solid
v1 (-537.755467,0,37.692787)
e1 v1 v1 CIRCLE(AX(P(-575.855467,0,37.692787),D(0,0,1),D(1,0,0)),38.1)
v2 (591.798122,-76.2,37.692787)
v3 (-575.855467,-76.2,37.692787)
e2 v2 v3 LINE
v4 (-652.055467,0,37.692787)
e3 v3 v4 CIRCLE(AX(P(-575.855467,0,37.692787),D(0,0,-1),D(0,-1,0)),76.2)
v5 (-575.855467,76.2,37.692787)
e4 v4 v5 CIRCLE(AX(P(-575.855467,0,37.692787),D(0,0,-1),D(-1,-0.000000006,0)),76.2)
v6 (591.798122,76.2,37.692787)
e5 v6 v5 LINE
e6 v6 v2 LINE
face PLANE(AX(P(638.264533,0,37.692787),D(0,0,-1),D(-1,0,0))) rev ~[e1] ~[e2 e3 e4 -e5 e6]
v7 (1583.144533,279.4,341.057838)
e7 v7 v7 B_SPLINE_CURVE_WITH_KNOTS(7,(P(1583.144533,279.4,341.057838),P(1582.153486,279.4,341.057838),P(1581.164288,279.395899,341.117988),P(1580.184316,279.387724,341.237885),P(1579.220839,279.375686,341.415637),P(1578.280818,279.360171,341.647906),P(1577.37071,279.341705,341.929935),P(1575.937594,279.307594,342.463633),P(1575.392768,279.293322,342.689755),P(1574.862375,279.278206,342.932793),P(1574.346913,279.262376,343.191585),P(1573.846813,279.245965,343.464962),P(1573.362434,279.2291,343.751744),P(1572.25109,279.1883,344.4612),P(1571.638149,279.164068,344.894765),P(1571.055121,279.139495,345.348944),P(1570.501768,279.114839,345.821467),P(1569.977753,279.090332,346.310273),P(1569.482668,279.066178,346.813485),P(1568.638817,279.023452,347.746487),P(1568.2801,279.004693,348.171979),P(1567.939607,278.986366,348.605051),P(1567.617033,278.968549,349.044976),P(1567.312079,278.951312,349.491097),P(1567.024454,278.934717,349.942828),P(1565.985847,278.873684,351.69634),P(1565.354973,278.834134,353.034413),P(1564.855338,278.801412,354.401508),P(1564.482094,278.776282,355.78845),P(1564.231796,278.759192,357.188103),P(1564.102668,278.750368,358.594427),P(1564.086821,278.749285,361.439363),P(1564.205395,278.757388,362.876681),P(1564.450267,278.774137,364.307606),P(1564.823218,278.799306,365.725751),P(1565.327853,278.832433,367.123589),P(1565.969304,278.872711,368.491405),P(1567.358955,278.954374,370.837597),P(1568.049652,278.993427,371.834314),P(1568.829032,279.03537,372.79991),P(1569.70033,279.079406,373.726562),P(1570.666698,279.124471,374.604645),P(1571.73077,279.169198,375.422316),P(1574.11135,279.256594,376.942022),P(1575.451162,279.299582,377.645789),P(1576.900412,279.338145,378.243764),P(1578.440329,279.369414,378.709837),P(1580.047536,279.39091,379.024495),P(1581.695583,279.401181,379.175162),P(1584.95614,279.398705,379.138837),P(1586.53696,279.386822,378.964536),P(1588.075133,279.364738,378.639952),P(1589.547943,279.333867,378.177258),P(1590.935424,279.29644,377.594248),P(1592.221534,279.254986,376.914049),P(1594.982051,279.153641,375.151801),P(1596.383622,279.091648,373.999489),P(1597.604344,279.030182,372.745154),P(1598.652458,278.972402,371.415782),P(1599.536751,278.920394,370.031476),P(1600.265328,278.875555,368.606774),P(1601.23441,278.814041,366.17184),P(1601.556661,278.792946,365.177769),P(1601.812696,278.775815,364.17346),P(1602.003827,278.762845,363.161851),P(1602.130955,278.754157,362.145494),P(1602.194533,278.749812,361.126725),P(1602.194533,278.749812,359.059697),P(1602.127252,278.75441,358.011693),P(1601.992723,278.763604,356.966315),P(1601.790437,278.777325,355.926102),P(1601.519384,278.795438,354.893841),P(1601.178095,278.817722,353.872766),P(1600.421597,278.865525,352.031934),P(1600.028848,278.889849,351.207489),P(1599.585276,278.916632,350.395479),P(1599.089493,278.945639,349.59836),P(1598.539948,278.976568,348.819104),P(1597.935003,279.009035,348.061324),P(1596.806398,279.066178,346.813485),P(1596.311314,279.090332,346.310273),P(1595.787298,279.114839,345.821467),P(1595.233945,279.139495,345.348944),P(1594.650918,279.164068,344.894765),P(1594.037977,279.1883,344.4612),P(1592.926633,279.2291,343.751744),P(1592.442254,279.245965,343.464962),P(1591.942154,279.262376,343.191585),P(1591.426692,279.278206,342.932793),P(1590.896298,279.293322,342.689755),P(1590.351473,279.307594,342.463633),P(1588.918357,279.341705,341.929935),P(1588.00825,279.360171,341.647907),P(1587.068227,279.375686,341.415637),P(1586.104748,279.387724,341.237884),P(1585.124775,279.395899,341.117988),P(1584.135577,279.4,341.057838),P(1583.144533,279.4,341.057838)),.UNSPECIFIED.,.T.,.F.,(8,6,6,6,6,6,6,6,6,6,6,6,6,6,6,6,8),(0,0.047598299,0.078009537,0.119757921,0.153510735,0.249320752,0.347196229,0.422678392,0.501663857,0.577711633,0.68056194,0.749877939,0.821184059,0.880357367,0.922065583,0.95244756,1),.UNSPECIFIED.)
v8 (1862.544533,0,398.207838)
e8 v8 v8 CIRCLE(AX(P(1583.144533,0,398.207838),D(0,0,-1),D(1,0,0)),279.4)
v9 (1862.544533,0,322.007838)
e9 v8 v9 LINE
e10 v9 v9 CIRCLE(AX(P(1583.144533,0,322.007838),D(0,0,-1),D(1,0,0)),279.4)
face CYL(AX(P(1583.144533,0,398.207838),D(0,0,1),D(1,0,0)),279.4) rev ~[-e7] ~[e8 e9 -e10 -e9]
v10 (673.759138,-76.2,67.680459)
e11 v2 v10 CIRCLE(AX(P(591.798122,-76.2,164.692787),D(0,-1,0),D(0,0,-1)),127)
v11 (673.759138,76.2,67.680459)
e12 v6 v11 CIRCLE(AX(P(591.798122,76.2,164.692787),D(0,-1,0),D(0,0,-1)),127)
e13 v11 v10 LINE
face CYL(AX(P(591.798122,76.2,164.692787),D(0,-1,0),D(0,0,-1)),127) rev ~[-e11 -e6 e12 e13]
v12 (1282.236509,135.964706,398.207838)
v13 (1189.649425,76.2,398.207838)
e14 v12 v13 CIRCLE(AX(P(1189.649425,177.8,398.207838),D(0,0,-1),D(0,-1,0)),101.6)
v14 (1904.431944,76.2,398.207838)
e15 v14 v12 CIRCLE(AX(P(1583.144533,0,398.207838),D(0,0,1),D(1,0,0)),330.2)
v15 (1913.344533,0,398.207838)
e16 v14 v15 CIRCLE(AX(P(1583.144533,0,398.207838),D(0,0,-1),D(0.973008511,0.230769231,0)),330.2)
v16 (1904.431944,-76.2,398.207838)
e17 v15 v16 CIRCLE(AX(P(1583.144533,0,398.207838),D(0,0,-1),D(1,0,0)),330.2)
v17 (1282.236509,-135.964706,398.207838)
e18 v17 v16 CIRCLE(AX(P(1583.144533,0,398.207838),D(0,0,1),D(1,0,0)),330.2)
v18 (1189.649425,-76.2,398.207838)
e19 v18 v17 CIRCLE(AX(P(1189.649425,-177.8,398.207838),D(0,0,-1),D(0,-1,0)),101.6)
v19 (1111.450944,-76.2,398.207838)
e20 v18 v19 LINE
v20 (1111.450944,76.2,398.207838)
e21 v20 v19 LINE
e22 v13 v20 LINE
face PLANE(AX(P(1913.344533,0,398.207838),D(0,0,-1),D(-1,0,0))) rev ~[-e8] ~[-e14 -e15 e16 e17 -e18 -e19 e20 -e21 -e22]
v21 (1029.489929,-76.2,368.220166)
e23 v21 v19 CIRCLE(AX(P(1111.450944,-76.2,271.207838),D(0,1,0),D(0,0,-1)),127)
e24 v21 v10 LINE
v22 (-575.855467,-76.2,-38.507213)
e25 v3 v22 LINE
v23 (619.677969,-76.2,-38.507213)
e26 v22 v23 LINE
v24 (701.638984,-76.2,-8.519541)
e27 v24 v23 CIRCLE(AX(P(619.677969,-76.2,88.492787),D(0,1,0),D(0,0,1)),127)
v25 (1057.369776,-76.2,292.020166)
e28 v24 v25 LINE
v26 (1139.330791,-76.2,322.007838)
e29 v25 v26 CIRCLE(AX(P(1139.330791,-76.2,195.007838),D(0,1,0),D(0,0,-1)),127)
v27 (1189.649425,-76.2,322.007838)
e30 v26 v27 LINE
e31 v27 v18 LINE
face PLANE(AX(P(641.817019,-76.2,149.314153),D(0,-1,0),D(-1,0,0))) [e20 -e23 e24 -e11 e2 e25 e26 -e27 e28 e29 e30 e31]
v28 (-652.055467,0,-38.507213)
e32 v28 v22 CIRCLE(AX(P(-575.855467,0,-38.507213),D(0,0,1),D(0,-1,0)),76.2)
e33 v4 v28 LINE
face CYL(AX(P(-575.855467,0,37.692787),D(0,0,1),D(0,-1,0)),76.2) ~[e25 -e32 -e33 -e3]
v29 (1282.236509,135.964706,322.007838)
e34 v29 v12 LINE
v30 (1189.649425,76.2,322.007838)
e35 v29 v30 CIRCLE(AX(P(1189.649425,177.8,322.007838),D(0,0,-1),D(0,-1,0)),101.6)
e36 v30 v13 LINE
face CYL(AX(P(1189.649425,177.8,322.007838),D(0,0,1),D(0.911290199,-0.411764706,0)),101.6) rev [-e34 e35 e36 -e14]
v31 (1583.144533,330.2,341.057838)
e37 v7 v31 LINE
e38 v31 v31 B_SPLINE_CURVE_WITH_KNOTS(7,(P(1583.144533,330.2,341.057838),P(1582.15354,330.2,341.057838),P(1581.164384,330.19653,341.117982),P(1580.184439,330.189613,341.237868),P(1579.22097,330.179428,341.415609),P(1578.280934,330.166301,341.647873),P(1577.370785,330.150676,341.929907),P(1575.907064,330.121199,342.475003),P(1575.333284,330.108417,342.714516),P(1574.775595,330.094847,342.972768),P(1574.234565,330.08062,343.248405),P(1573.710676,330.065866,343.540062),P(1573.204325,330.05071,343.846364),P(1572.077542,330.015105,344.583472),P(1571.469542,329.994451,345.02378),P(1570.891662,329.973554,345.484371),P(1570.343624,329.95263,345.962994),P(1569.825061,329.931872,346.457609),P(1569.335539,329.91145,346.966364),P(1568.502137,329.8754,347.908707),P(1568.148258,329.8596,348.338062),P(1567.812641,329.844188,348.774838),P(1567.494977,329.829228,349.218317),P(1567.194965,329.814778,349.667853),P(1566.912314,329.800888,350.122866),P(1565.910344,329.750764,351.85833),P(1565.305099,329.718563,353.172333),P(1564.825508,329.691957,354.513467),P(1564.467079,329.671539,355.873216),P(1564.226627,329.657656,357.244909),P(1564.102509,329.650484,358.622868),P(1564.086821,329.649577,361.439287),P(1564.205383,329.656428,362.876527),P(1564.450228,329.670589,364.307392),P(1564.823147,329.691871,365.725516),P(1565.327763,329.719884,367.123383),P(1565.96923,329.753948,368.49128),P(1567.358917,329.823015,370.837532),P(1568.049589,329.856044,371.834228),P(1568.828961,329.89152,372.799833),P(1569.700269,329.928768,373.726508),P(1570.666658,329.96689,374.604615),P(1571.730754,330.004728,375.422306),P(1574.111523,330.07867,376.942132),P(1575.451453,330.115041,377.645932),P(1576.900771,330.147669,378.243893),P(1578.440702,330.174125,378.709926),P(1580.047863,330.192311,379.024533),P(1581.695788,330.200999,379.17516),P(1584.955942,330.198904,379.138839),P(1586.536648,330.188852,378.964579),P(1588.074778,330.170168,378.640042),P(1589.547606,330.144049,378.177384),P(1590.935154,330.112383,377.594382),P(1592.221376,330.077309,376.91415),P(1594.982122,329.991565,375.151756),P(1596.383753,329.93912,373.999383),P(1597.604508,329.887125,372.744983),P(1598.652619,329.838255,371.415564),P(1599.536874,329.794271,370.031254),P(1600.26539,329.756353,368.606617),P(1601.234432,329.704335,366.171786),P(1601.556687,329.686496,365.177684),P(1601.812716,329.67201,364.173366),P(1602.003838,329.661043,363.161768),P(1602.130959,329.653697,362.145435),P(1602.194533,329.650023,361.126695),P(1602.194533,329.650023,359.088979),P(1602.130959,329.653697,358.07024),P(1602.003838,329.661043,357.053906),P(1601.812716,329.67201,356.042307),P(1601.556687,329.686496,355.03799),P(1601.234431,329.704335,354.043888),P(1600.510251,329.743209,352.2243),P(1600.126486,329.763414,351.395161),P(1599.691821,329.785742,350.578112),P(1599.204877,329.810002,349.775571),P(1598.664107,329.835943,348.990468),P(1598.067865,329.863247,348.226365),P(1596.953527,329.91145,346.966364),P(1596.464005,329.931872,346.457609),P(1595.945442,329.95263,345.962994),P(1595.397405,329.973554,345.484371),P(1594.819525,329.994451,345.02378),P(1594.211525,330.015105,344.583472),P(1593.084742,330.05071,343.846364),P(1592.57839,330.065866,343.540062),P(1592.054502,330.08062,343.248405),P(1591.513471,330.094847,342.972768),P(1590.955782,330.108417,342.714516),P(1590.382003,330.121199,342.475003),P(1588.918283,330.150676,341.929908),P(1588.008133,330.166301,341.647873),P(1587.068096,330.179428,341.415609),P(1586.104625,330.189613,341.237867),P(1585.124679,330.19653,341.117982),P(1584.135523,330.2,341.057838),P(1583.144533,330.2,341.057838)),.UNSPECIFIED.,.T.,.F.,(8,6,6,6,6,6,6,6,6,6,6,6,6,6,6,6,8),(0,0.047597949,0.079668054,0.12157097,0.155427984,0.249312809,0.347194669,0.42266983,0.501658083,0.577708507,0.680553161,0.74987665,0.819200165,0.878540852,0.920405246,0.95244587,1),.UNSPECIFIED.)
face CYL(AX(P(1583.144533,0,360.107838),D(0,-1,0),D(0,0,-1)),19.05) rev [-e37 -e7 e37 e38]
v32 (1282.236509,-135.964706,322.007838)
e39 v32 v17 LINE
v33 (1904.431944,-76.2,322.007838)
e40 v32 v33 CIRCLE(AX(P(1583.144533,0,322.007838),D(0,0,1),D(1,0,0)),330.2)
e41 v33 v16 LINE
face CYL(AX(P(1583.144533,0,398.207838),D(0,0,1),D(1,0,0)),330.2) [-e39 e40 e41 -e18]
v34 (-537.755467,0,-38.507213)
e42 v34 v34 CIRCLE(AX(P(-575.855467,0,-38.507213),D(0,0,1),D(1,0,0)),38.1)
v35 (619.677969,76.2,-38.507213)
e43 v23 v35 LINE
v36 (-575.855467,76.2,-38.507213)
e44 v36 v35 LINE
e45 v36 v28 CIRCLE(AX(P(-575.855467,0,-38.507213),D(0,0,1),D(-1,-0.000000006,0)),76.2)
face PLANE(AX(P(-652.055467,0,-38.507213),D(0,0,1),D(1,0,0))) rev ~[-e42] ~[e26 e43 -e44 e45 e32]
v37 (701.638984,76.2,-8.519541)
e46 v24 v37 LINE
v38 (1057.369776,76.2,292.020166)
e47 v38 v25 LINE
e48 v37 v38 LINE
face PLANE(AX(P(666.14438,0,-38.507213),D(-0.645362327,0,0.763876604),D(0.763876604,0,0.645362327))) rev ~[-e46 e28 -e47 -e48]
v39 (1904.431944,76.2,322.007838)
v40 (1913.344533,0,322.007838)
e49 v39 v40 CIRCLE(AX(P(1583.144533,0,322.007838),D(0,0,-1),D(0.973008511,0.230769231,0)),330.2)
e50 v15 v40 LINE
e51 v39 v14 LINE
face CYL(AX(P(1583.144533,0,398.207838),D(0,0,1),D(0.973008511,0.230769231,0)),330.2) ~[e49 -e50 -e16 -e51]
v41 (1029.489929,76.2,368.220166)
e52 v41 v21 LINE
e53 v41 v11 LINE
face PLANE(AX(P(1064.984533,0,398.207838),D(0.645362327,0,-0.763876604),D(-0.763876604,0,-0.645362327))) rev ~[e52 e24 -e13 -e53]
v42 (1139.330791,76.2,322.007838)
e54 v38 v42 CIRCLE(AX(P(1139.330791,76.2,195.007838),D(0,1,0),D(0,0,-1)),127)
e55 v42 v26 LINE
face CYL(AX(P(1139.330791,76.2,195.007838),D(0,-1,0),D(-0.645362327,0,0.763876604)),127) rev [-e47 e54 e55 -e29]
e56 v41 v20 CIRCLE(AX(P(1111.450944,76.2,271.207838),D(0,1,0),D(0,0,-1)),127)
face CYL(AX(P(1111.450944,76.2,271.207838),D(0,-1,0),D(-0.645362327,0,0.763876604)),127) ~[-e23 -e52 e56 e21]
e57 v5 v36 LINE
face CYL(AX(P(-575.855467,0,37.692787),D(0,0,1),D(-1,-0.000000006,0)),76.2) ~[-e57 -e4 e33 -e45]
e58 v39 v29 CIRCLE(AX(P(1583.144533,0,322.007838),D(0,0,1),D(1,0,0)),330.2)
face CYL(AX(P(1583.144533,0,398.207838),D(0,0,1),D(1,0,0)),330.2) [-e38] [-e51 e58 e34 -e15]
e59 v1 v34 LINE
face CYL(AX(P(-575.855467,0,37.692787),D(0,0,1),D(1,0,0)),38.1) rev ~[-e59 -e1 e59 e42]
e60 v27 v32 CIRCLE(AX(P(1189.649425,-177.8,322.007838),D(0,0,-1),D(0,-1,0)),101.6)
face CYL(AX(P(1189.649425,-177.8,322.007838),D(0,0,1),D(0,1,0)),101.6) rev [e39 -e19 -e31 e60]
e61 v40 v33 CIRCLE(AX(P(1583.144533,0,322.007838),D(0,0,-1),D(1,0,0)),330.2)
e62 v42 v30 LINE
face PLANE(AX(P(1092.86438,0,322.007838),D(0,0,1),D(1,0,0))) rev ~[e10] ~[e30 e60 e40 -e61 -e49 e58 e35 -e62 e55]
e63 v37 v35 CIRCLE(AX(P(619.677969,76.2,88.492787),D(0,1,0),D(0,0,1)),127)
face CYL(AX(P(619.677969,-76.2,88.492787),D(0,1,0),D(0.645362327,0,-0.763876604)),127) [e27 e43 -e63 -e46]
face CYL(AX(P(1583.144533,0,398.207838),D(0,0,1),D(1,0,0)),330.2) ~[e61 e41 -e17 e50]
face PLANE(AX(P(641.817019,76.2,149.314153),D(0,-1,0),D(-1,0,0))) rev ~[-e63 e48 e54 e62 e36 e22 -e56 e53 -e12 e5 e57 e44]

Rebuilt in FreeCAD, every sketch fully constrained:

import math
import FreeCAD as App
import Part
import Sketcher
Q = App.Units.Quantity


def edges_at(feature, points):
    """Names of the edges that pass closest to the given points."""
    edges = feature.Shape.Edges
    near = lambda p: min(range(len(edges)), key=lambda i: edges[i].distToShape(Part.Vertex(*p))[0])
    return sorted({f"Edge{near(p) + 1}" for p in points})


def add_polygon(sketch, points):
    """Adds a closed chain of lines whose ends are joined by coincident constraints."""
    first, n = sketch.GeometryCount, len(points)
    for a, b in zip(points, points[1:] + points[:1]):
        sketch.addGeometry(Part.LineSegment(App.Vector(*a, 0), App.Vector(*b, 0)), False)
    for i in range(n):
        sketch.addConstraint(Sketcher.Constraint("Coincident", first + i, 2, first + (i + 1) % n, 1))

doc = App.newDocument("Part")
params = doc.addObject("Spreadsheet::Sheet", "Params")
for row, (alias, value) in enumerate([
    ("sketch1_height", "3 in"),
    ("sketch1_width", "50.8 in"),
    ("sketch1_width2", "33.4 in"),
    ("pad1_length", "6 in"),
    ("fillet_radius", "5 in"),
    ("sketch2_radius", "3 in"),
    ("pocket1_length", "6 in"),
    ("sketch3_diameter", "3 in"),
    ("pocket2_length", "6 in"),
    ("sketch4_diameter", "26 in"),
    ("sketch4_diameter2", "22 in"),
    ("pad2_length", "3 in"),
    ("sketch5_radius", "13 in"),
    ("sketch5_height", "3 in"),
    ("pocket3_length", "3 in"),
    ("sketch6_diameter", "22 in"),
    ("pocket4_length", "3 in"),
    ("fillet2_radius", "4 in"),
    ("sketch7_diameter", "1.5 in"),
], start=1):
    params.set(f"A{row}", alias)
    params.set(f"B{row}", "=" + value)
    params.setAlias(f"B{row}", alias)

body = doc.addObject("PartDesign::Body", "Body")

# Sketch on XZ plane
sketch1 = body.newObject("Sketcher::SketchObject", "Sketch")
sketch1.AttachmentSupport = (doc.getObject("XZ_Plane"), [""])
sketch1.MapMode = "FlatFace"
add_polygon(sketch1, [(1093, 322), (666, -39), (-652, -39), (-652, 38), (638, 38), (1065, 398), (1913, 398), (1913, 322)])  # lines 0-7
sketch1.addConstraint([
    Sketcher.Constraint("Horizontal", 1),
    Sketcher.Constraint("Vertical", 2),
    Sketcher.Constraint("Horizontal", 3),
    Sketcher.Constraint("Horizontal", 5),
    Sketcher.Constraint("Vertical", 6),
    Sketcher.Constraint("Horizontal", 7),
    Sketcher.Constraint("Parallel", 0, 4),
    Sketcher.Constraint("Equal", 2, 6),
    Sketcher.Constraint("DistanceY", 2, 1, 2, 2, Q("3 in")),
    Sketcher.Constraint("DistanceX", 3, 1, 3, 2, Q("50.8 in")),
    Sketcher.Constraint("DistanceX", 5, 1, 5, 2, Q("33.4 in")),
    Sketcher.Constraint("DistanceX", 2, 2, 5, 2, Q("101 in")),
    Sketcher.Constraint("DistanceX", 1, 2, 1, 1, Q("1318.199847 mm")),
    Sketcher.Constraint("DistanceX", -1, 1, 0, 2, Q("666.14438 mm")),
    Sketcher.Constraint("DistanceY", 3, 2, 4, 2, Q("360.51505 mm")),
    Sketcher.Constraint("DistanceY", 0, 2, -1, 1, Q("38.507213 mm")),
])
sketch1.setExpression("Constraints[16]", "Params.sketch1_height")
sketch1.setExpression("Constraints[17]", "Params.sketch1_width")
sketch1.setExpression("Constraints[18]", "Params.sketch1_width2")
pad1 = body.newObject("PartDesign::Pad", "Pad")
pad1.Profile = sketch1
pad1.setExpression("Length", "Params.pad1_length")
pad1.Midplane = True
doc.recompute()

fillet = body.newObject("PartDesign::Fillet", "Fillet")
fillet.Base = (pad1, edges_at(pad1, [
    (666.144, 0, -38.507),
    (1092.864, 0, 322.008),
    (1064.985, 0, 398.208),
    (638.265, 0, 37.693),
]))
fillet.setExpression("Radius", "Params.fillet_radius")

# Sketch on XY plane
sketch2 = body.newObject("Sketcher::SketchObject", "Sketch001")
sketch2.AttachmentSupport = (doc.getObject("XY_Plane"), [""])
sketch2.MapMode = "FlatFace"
sketch2.AttachmentOffset = App.Placement(App.Vector(0, 0, 37.692787), App.Rotation())
sketch2.addGeometry([
    Part.ArcOfCircle(Part.Circle(App.Vector(-576, 0, 0), App.Vector(0, 0, 1), 76), math.radians(90), math.radians(180)),  # 0
    Part.LineSegment(App.Vector(-576, 76, 0), App.Vector(-652, 76, 0)),  # 1
    Part.LineSegment(App.Vector(-652, 76, 0), App.Vector(-652, 0, 0)),  # 2
    Part.ArcOfCircle(Part.Circle(App.Vector(-576, 0, 0), App.Vector(0, 0, 1), 76), math.radians(-180), math.radians(-90)),  # 3
    Part.LineSegment(App.Vector(-652, 0, 0), App.Vector(-652, -76, 0)),  # 4
    Part.LineSegment(App.Vector(-652, -76, 0), App.Vector(-576, -76, 0)),  # 5
], False)
sketch2.addConstraint([
    Sketcher.Constraint("Tangent", 0, 1, 1, 1),
    Sketcher.Constraint("Coincident", 1, 2, 2, 1),
    Sketcher.Constraint("Tangent", 2, 2, 0, 2),
    Sketcher.Constraint("Tangent", 3, 1, 4, 1),
    Sketcher.Constraint("Coincident", 4, 2, 5, 1),
    Sketcher.Constraint("Tangent", 5, 2, 3, 2),
    Sketcher.Constraint("Horizontal", 1),
    Sketcher.Constraint("Vertical", 2),
    Sketcher.Constraint("Vertical", 4),
    Sketcher.Constraint("Horizontal", 5),
    Sketcher.Constraint("Coincident", 3, 3, 0, 3),
    Sketcher.Constraint("Equal", 0, 3),
    Sketcher.Constraint("PointOnObject", 0, 3, -1),
    Sketcher.Constraint("Radius", 0, Q("3 in")),
    Sketcher.Constraint("DistanceX", 0, 3, -1, 1, Q("575.855467 mm")),
])
sketch2.setExpression("Constraints[13]", "Params.sketch2_radius")
pocket1 = body.newObject("PartDesign::Pocket", "Pocket")
pocket1.Profile = sketch2
pocket1.setExpression("Length", "Params.pocket1_length")

# Sketch on XY plane
sketch3 = body.newObject("Sketcher::SketchObject", "Sketch002")
sketch3.AttachmentSupport = (doc.getObject("XY_Plane"), [""])
sketch3.MapMode = "FlatFace"
sketch3.AttachmentOffset = App.Placement(App.Vector(0, 0, 37.692787), App.Rotation())
sketch3.addGeometry(Part.Circle(App.Vector(-576, 0, 0), App.Vector(0, 0, 1), 38), False)
sketch3.addConstraint([
    Sketcher.Constraint("PointOnObject", 0, 3, -1),
    Sketcher.Constraint("Diameter", 0, Q("3 in")),
    Sketcher.Constraint("DistanceX", 0, 3, -1, 1, Q("575.855467 mm")),
])
sketch3.setExpression("Constraints[1]", "Params.sketch3_diameter")
pocket2 = body.newObject("PartDesign::Pocket", "Pocket001")
pocket2.Profile = sketch3
pocket2.setExpression("Length", "Params.pocket2_length")

# Sketch on XY plane
sketch4 = body.newObject("Sketcher::SketchObject", "Sketch003")
sketch4.AttachmentSupport = (doc.getObject("XY_Plane"), [""])
sketch4.MapMode = "FlatFace"
sketch4.AttachmentOffset = App.Placement(App.Vector(0, 0, 398.207838), App.Rotation())
sketch4.addGeometry([
    Part.Circle(App.Vector(1583, 0, 0), App.Vector(0, 0, 1), 330),
    Part.Circle(App.Vector(1583, 0, 0), App.Vector(0, 0, 1), 279),
], False)
sketch4.addConstraint([
    Sketcher.Constraint("Coincident", 1, 3, 0, 3),
    Sketcher.Constraint("PointOnObject", 0, 3, -1),
    Sketcher.Constraint("Diameter", 0, Q("26 in")),
    Sketcher.Constraint("Diameter", 1, Q("22 in")),
    Sketcher.Constraint("DistanceX", -1, 1, 0, 3, Q("1583.144533 mm")),
])
sketch4.setExpression("Constraints[2]", "Params.sketch4_diameter")
sketch4.setExpression("Constraints[3]", "Params.sketch4_diameter2")
pad2 = body.newObject("PartDesign::Pad", "Pad001")
pad2.Profile = sketch4
pad2.setExpression("Length", "Params.pad2_length")
pad2.Reversed = True

# Sketch on XY plane
sketch5 = body.newObject("Sketcher::SketchObject", "Sketch004")
sketch5.AttachmentSupport = (doc.getObject("XY_Plane"), [""])
sketch5.MapMode = "FlatFace"
sketch5.AttachmentOffset = App.Placement(App.Vector(0, 0, 398.207838), App.Rotation())
sketch5.addGeometry([
    Part.LineSegment(App.Vector(1913, 76, 0), App.Vector(1904, 76, 0)),  # 0
    Part.ArcOfCircle(Part.Circle(App.Vector(1583, 0, 0), App.Vector(0, 0, 1), 330), math.radians(0), math.radians(13.34)),  # 1
    Part.LineSegment(App.Vector(1913, 0, 0), App.Vector(1913, 76, 0)),  # 2
    Part.LineSegment(App.Vector(1913, -76, 0), App.Vector(1913, 0, 0)),  # 3
    Part.ArcOfCircle(Part.Circle(App.Vector(1583, 0, 0), App.Vector(0, 0, 1), 330), math.radians(-13.34), math.radians(0)),  # 4
    Part.LineSegment(App.Vector(1904, -76, 0), App.Vector(1913, -76, 0)),  # 5
], False)
sketch5.addConstraint([
    Sketcher.Constraint("Coincident", 0, 2, 1, 2),
    Sketcher.Constraint("Tangent", 1, 1, 2, 1),
    Sketcher.Constraint("Coincident", 2, 2, 0, 1),
    Sketcher.Constraint("Tangent", 3, 2, 4, 2),
    Sketcher.Constraint("Coincident", 4, 1, 5, 1),
    Sketcher.Constraint("Coincident", 5, 2, 3, 1),
    Sketcher.Constraint("Horizontal", 0),
    Sketcher.Constraint("Vertical", 2),
    Sketcher.Constraint("Vertical", 3),
    Sketcher.Constraint("Horizontal", 5),
    Sketcher.Constraint("Coincident", 4, 3, 1, 3),
    Sketcher.Constraint("Equal", 1, 4),
    Sketcher.Constraint("PointOnObject", 1, 3, -1),
    Sketcher.Constraint("Vertical", 0, 2, 4, 1),
    Sketcher.Constraint("Radius", 1, Q("13 in")),
    Sketcher.Constraint("DistanceY", 2, 1, 2, 2, Q("3 in")),
    Sketcher.Constraint("DistanceX", -1, 1, 1, 3, Q("1583.144533 mm")),
])
sketch5.setExpression("Constraints[14]", "Params.sketch5_radius")
sketch5.setExpression("Constraints[15]", "Params.sketch5_height")
pocket3 = body.newObject("PartDesign::Pocket", "Pocket002")
pocket3.Profile = sketch5
pocket3.setExpression("Length", "Params.pocket3_length")

# Sketch on XY plane
sketch6 = body.newObject("Sketcher::SketchObject", "Sketch005")
sketch6.AttachmentSupport = (doc.getObject("XY_Plane"), [""])
sketch6.MapMode = "FlatFace"
sketch6.AttachmentOffset = App.Placement(App.Vector(0, 0, 398.207838), App.Rotation())
sketch6.addGeometry(Part.Circle(App.Vector(1583, 0, 0), App.Vector(0, 0, 1), 279), False)
sketch6.addConstraint([
    Sketcher.Constraint("PointOnObject", 0, 3, -1),
    Sketcher.Constraint("Diameter", 0, Q("22 in")),
    Sketcher.Constraint("DistanceX", -1, 1, 0, 3, Q("1583.144533 mm")),
])
sketch6.setExpression("Constraints[1]", "Params.sketch6_diameter")
pocket4 = body.newObject("PartDesign::Pocket", "Pocket003")
pocket4.Profile = sketch6
pocket4.setExpression("Length", "Params.pocket4_length")
doc.recompute()

fillet2 = body.newObject("PartDesign::Fillet", "Fillet001")
fillet2.Base = (pocket4, edges_at(pocket4, [(1261.857, -76.2, 360.108), (1261.857, 76.2, 360.108)]))
fillet2.setExpression("Radius", "Params.fillet2_radius")

# Sketch on XZ plane
sketch7 = body.newObject("Sketcher::SketchObject", "Sketch006")
sketch7.AttachmentSupport = (doc.getObject("XZ_Plane"), [""])
sketch7.MapMode = "FlatFace"
sketch7.addGeometry(Part.Circle(App.Vector(1583, 360, 0), App.Vector(0, 0, 1), 19), False)
sketch7.addConstraint([
    Sketcher.Constraint("Diameter", 0, Q("1.5 in")),
    Sketcher.Constraint("DistanceX", -1, 1, 0, 3, Q("1583.144533 mm")),
    Sketcher.Constraint("DistanceY", -1, 1, 0, 3, Q("360.107838 mm")),
])
sketch7.setExpression("Constraints[0]", "Params.sketch7_diameter")
pocket5 = body.newObject("PartDesign::Pocket", "Pocket004")
pocket5.Profile = sketch7
pocket5.Type = "ThroughAll"

doc.recompute()
